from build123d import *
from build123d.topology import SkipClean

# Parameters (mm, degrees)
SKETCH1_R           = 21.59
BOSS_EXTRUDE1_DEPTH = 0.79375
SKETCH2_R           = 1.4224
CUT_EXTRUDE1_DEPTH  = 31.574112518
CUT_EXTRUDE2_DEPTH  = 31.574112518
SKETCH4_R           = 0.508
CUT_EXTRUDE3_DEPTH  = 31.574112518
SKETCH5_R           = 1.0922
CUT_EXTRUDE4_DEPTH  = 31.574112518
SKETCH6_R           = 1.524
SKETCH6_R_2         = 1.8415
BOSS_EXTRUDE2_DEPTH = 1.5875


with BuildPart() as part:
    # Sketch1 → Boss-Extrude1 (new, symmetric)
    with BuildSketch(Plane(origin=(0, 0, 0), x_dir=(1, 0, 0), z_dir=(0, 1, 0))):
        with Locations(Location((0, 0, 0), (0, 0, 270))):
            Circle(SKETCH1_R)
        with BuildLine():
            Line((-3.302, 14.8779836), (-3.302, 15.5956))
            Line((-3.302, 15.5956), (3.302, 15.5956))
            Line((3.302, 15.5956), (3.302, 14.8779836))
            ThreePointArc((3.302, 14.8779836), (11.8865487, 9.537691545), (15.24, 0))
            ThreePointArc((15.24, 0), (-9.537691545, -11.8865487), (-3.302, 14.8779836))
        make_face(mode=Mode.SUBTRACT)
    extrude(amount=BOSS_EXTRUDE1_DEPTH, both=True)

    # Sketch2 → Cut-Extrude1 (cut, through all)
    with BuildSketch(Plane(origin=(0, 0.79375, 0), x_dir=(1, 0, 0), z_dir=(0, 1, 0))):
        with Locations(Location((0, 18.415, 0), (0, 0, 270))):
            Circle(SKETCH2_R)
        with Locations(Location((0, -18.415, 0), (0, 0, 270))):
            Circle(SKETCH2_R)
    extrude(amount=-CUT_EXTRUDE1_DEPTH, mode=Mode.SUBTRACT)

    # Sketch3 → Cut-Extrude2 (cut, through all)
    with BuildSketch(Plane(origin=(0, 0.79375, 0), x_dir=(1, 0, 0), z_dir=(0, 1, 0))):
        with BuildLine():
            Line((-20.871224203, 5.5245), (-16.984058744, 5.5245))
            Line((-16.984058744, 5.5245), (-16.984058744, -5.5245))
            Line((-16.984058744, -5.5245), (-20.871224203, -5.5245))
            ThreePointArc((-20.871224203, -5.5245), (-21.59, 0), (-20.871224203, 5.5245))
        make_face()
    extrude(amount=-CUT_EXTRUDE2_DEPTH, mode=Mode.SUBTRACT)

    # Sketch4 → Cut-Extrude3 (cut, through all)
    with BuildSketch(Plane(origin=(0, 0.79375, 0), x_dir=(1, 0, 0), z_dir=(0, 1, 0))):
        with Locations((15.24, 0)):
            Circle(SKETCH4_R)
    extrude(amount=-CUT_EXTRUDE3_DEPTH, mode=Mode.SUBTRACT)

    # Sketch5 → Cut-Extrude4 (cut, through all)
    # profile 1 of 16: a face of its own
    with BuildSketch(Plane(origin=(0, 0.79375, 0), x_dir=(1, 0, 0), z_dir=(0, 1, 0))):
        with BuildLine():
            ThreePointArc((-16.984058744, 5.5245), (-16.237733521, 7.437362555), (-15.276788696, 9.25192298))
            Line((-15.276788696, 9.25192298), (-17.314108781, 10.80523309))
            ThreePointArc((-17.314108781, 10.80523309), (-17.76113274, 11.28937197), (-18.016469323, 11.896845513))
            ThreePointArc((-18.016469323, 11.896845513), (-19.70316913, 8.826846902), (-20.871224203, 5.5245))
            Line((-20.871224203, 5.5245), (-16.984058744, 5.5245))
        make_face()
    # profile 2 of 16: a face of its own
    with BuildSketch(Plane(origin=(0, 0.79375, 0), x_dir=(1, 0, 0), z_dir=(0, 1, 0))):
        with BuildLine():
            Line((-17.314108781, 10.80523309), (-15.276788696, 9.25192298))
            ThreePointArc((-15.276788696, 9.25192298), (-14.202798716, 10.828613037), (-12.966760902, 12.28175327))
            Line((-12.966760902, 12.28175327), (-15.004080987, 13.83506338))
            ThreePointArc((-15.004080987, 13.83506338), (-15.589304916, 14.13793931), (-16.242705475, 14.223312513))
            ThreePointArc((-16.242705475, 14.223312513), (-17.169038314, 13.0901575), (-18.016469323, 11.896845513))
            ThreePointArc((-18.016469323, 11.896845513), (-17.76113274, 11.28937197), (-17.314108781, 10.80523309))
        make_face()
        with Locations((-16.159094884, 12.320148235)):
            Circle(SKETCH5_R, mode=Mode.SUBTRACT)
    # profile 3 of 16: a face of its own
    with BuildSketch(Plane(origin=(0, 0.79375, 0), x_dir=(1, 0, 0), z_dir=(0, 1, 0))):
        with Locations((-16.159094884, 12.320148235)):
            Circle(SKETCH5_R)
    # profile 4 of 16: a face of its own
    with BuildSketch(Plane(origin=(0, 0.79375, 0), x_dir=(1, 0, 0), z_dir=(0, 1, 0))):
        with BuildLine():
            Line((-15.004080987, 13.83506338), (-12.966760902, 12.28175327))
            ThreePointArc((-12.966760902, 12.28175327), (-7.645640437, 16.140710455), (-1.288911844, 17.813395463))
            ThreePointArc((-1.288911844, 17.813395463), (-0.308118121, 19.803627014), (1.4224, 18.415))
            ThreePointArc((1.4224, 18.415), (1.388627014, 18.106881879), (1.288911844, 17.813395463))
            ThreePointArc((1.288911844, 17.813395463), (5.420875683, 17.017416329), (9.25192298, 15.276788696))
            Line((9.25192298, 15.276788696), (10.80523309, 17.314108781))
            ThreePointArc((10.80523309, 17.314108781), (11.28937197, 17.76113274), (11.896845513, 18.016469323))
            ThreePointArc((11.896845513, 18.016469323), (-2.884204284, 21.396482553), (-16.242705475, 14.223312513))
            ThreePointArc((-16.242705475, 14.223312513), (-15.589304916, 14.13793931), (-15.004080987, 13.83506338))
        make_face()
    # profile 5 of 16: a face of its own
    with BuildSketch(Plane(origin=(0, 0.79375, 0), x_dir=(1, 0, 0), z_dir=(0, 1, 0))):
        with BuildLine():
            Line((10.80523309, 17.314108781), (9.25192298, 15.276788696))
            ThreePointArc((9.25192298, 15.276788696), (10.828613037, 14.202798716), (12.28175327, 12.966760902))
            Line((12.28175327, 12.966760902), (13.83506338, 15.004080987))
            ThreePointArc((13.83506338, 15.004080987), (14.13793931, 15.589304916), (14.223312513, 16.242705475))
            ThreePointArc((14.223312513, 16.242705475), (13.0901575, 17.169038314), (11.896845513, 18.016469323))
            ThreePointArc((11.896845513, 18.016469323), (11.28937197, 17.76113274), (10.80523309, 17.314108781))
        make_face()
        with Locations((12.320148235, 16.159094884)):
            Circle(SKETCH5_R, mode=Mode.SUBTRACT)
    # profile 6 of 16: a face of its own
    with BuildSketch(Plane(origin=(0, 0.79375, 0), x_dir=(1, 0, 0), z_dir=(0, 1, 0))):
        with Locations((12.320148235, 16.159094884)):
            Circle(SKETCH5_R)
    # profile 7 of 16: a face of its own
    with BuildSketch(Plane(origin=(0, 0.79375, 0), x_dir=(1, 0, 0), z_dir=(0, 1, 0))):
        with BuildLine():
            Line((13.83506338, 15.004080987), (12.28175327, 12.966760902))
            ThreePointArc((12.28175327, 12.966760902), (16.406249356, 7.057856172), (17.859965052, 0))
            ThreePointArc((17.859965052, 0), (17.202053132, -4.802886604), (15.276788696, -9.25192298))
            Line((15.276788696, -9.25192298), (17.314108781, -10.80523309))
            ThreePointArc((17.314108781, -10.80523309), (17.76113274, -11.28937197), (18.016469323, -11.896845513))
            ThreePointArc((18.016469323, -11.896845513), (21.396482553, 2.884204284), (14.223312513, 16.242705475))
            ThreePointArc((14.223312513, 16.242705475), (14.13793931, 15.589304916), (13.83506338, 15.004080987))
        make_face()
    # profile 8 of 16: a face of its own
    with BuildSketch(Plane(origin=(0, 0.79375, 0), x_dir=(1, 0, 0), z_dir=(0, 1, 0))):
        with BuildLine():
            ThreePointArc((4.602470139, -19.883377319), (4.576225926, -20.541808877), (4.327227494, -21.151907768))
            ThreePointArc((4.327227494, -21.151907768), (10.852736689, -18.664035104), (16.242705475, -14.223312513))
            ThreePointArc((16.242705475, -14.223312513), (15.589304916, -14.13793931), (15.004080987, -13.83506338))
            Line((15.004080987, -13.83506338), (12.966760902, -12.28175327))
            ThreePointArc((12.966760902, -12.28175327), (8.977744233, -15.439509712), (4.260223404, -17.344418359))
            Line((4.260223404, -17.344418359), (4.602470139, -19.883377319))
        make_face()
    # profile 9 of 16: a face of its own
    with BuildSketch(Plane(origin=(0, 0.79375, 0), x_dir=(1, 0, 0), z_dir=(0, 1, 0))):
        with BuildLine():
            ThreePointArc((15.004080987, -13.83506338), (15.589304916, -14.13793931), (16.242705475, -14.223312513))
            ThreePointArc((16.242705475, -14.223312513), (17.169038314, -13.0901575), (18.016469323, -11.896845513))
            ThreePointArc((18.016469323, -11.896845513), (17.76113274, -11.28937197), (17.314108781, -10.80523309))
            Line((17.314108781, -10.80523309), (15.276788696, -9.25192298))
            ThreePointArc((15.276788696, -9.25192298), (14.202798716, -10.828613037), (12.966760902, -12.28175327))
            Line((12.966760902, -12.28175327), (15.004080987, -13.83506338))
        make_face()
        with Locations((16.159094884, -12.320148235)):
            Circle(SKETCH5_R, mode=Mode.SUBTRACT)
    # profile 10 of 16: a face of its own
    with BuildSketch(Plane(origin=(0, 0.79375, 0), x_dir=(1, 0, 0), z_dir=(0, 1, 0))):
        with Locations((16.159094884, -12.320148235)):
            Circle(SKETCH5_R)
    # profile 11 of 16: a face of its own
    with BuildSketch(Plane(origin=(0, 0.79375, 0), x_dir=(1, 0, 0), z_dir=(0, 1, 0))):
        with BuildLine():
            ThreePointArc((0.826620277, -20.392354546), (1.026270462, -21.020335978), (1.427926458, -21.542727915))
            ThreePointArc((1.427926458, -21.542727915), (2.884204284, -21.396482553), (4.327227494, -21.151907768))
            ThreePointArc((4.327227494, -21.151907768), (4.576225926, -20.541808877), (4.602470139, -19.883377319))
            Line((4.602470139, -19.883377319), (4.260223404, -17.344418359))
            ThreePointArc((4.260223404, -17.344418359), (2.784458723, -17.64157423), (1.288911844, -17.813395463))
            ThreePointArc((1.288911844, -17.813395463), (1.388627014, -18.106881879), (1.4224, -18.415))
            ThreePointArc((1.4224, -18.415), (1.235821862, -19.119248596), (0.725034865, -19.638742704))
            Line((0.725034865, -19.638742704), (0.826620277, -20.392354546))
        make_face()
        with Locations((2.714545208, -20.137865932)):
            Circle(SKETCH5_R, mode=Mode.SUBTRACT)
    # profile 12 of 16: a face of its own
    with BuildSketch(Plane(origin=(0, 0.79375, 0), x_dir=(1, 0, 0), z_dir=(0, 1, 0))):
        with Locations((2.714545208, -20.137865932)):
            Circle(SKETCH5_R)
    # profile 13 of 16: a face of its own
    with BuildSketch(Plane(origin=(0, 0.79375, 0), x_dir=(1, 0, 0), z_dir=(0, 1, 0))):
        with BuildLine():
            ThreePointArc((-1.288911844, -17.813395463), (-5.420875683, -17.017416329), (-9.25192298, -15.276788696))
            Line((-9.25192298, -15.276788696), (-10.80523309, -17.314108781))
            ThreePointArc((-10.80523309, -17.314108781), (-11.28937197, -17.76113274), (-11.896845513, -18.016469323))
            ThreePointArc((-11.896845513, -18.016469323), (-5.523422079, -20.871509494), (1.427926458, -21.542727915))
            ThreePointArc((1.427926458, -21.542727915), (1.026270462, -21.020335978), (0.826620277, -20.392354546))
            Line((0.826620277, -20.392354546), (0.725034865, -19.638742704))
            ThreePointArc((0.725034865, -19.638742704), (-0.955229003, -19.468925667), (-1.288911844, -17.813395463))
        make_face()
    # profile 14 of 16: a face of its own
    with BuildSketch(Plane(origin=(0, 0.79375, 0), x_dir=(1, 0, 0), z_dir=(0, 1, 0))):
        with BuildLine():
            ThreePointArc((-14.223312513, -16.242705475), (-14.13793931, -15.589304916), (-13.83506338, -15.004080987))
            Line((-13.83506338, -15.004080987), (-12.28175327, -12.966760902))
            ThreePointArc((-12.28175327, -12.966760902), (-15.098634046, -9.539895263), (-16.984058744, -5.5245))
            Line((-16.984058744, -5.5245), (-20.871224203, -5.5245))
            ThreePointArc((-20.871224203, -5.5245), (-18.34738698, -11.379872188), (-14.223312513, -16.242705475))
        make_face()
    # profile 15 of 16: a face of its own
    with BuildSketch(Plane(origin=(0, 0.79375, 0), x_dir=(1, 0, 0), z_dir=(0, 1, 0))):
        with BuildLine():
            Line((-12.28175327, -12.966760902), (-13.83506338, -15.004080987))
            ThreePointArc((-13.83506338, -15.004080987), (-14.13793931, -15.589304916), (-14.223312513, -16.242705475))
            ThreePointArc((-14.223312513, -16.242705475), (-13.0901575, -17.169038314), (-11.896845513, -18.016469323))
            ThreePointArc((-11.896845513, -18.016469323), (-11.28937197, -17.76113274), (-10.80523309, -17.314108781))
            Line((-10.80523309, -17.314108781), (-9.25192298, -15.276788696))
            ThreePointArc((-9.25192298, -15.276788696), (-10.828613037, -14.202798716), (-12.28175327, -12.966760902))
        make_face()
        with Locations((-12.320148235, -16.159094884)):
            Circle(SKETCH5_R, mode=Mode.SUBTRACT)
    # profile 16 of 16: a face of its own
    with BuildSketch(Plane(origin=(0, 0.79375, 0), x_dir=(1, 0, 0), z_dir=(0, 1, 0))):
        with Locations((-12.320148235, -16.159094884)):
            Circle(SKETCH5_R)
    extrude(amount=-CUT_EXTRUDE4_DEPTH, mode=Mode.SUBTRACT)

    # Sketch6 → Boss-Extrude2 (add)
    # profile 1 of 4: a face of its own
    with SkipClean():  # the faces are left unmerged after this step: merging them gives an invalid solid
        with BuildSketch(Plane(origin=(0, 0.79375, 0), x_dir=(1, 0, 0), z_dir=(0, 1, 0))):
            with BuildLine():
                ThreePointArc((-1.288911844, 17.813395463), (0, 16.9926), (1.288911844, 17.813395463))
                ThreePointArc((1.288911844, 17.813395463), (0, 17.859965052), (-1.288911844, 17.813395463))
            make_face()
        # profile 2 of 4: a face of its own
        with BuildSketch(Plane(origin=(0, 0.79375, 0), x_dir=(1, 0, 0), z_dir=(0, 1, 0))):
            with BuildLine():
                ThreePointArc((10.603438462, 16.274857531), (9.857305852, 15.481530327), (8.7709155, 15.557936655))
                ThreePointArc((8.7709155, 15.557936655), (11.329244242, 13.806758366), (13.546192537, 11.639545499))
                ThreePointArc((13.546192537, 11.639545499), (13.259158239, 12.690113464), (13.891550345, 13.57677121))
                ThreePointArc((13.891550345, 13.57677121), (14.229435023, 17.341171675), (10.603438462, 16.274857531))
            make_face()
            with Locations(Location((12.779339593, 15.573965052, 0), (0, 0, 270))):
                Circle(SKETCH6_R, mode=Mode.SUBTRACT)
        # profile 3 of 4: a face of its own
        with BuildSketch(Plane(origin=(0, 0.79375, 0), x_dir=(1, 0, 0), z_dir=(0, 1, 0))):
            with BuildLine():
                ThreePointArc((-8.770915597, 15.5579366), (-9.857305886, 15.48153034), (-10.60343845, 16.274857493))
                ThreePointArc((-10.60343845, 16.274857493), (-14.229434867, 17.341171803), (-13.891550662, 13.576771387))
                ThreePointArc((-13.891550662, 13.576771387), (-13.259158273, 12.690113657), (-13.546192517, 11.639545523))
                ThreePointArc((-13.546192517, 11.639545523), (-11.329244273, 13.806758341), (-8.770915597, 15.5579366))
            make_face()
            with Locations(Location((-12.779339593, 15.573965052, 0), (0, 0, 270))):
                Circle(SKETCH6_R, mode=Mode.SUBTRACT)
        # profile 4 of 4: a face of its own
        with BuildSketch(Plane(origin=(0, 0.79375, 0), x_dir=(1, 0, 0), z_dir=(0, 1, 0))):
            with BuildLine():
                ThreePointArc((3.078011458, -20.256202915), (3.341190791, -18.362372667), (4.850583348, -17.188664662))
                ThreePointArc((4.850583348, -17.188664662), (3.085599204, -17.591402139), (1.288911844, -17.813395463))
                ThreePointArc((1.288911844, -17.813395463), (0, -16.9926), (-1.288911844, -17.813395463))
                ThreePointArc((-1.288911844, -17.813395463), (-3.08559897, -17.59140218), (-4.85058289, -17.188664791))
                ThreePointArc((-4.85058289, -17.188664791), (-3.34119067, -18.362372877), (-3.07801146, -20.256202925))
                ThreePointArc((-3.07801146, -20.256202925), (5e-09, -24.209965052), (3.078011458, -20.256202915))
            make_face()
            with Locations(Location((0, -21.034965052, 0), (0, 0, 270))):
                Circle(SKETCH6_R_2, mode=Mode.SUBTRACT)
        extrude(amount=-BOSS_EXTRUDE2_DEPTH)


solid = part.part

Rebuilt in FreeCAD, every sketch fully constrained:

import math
import FreeCAD as App
import Part
import Sketcher
Q = App.Units.Quantity

doc = App.newDocument("Part")
body = doc.addObject("PartDesign::Body", "Body")

sketch1 = body.newObject("Sketcher::SketchObject", "Sketch")
sketch1.AttachmentSupport = (doc.getObject("XZ_Plane"), [""])
sketch1.MapMode = "FlatFace"
sketch1.addGeometry([
    Part.Circle(App.Vector(0, 0, 0), App.Vector(0, 0, 1), 21.6),
    Part.ArcOfCircle(Part.Circle(App.Vector(0, 0, 0), App.Vector(0, 0, 1), 15.2), math.radians(0), math.radians(257)),
    Part.LineSegment(App.Vector(-3.3, -14.9, 0), App.Vector(-3.3, -15.6, 0)),
    Part.LineSegment(App.Vector(-3.3, -15.6, 0), App.Vector(3.3, -15.6, 0)),
    Part.LineSegment(App.Vector(3.3, -15.6, 0), App.Vector(3.3, -14.9, 0)),
    Part.ArcOfCircle(Part.Circle(App.Vector(0, 0, 0), App.Vector(0, 0, 1), 15.2), math.radians(-77), math.radians(0)),
], False)
sketch1.addConstraint([
    Sketcher.Constraint("Coincident", 1, 2, 2, 1),
    Sketcher.Constraint("Coincident", 2, 2, 3, 1),
    Sketcher.Constraint("Coincident", 3, 2, 4, 1),
    Sketcher.Constraint("Coincident", 4, 2, 5, 1),
    Sketcher.Constraint("Tangent", 5, 2, 1, 1),
    Sketcher.Constraint("Vertical", 2),
    Sketcher.Constraint("Horizontal", 3),
    Sketcher.Constraint("Vertical", 4),
    Sketcher.Constraint("Coincident", 0, 3, -1, 1),
    Sketcher.Constraint("Coincident", 1, 3, -1, 1),
    Sketcher.Constraint("Equal", 1, 5),
    Sketcher.Constraint("PointOnObject", 5, 2, -1),
    Sketcher.Constraint("Horizontal", 1, 2, 4, 2),
    Sketcher.Constraint("Diameter", 0, Q("1.7 in")),
    Sketcher.Constraint("Radius", 1, Q("0.6 in")),
    Sketcher.Constraint("DistanceX", 3, 1, 3, 2, Q("0.26 in")),
    Sketcher.Constraint("DistanceY", 2, 2, -1, 1, Q("0.614 in")),
])
pad1 = body.newObject("PartDesign::Pad", "Pad")
pad1.Profile = sketch1
pad1.Length = Q("0.0625 in")
pad1.Midplane = True

sketch2 = body.newObject("Sketcher::SketchObject", "Sketch001")
sketch2.AttachmentSupport = (doc.getObject("XZ_Plane"), [""])
sketch2.MapMode = "FlatFace"
sketch2.AttachmentOffset = App.Placement(App.Vector(0, 0, -0.03125 * 25.4), App.Rotation())
sketch2.addGeometry([
    Part.Circle(App.Vector(0, -18.4, 0), App.Vector(0, 0, 1), 1.4),
    Part.Circle(App.Vector(0, 18.4, 0), App.Vector(0, 0, 1), 1.4),
], False)
sketch2.addConstraint([
    Sketcher.Constraint("Equal", 0, 1),
    Sketcher.Constraint("Symmetric", 0, 3, 1, 3, -1, 1),
    Sketcher.Constraint("PointOnObject", 0, 3, -2),
    Sketcher.Constraint("Diameter", 0, Q("0.112 in")),
    Sketcher.Constraint("DistanceY", 0, 3, 1, 3, Q("1.45 in")),
])
pocket1 = body.newObject("PartDesign::Pocket", "Pocket")
pocket1.Profile = sketch2
pocket1.Type = "ThroughAll"
pocket1.Reversed = True

sketch3 = body.newObject("Sketcher::SketchObject", "Sketch002")
sketch3.AttachmentSupport = (doc.getObject("XZ_Plane"), [""])
sketch3.MapMode = "FlatFace"
sketch3.AttachmentOffset = App.Placement(App.Vector(0, 0, -0.03125 * 25.4), App.Rotation())
sketch3.addGeometry([
    Part.LineSegment(App.Vector(-17, -5.5, 0), App.Vector(-20.9, -5.5, 0)),
    Part.ArcOfCircle(Part.Circle(App.Vector(0, 0, 0), App.Vector(0, 0, 1), 21.6), math.radians(165), math.radians(195)),
    Part.LineSegment(App.Vector(-20.9, 5.5, 0), App.Vector(-17, 5.5, 0)),
    Part.LineSegment(App.Vector(-17, 5.5, 0), App.Vector(-17, -5.5, 0)),
], False)
sketch3.addConstraint([
    Sketcher.Constraint("Coincident", 0, 2, 1, 2),
    Sketcher.Constraint("Coincident", 1, 1, 2, 1),
    Sketcher.Constraint("Coincident", 2, 2, 3, 1),
    Sketcher.Constraint("Coincident", 3, 2, 0, 1),
    Sketcher.Constraint("Horizontal", 0),
    Sketcher.Constraint("Horizontal", 2),
    Sketcher.Constraint("Vertical", 3),
    Sketcher.Constraint("Coincident", 1, 3, -1, 1),
    Sketcher.Constraint("Vertical", 0, 2, 1, 1),
    Sketcher.Constraint("Radius", 1, Q("0.85 in")),
    Sketcher.Constraint("DistanceY", 3, 2, 3, 1, Q("0.435 in")),
    Sketcher.Constraint("DistanceX", 0, 2, 0, 1, Q("3.887165 mm")),
])
pocket2 = body.newObject("PartDesign::Pocket", "Pocket001")
pocket2.Profile = sketch3
pocket2.Type = "ThroughAll"
pocket2.Reversed = True

sketch4 = body.newObject("Sketcher::SketchObject", "Sketch003")
sketch4.AttachmentSupport = (doc.getObject("XZ_Plane"), [""])
sketch4.MapMode = "FlatFace"
sketch4.AttachmentOffset = App.Placement(App.Vector(0, 0, -0.03125 * 25.4), App.Rotation())
sketch4.addGeometry(Part.Circle(App.Vector(15.2, 0, 0), App.Vector(0, 0, 1), 0.5), False)
sketch4.addConstraint([
    Sketcher.Constraint("PointOnObject", 0, 3, -1),
    Sketcher.Constraint("Diameter", 0, Q("0.04 in")),
    Sketcher.Constraint("DistanceX", -1, 1, 0, 3, Q("0.6 in")),
])
pocket3 = body.newObject("PartDesign::Pocket", "Pocket002")
pocket3.Profile = sketch4
pocket3.Type = "ThroughAll"
pocket3.Reversed = True

sketch5 = body.newObject("Sketcher::SketchObject", "Sketch004")
sketch5.AttachmentSupport = (doc.getObject("XZ_Plane"), [""])
sketch5.MapMode = "FlatFace"
sketch5.AttachmentOffset = App.Placement(App.Vector(0, 0, -0.03125 * 25.4), App.Rotation())
sketch5.addGeometry([
    Part.ArcOfCircle(Part.Circle(App.Vector(0, 0, 0), App.Vector(0, 0, 1), 17.9), math.radians(-161.98), math.radians(-148.8)),
    Part.ArcOfCircle(Part.Circle(App.Vector(0, 0, 0), App.Vector(0, 0, 1), 17.9), math.radians(-148.8), math.radians(-136.55)),
    Part.ArcOfCircle(Part.Circle(App.Vector(0, 0, 0), App.Vector(0, 0, 1), 17.9), math.radians(-137), math.radians(-94)),
    Part.ArcOfCircle(Part.Circle(App.Vector(0, -18.4, 0), App.Vector(0, 0, 1), 1.4), math.radians(155), math.radians(360)),
    Part.ArcOfCircle(Part.Circle(App.Vector(0, -18.4, 0), App.Vector(0, 0, 1), 1.4), math.radians(0), math.radians(25)),
    Part.ArcOfCircle(Part.Circle(App.Vector(0, 0, 0), App.Vector(0, 0, 1), 17.9), math.radians(-86), math.radians(-59)),
    Part.ArcOfCircle(Part.Circle(App.Vector(0, 0, 0), App.Vector(0, 0, 1), 17.9), math.radians(-58.8), math.radians(-46.55)),
    Part.ArcOfCircle(Part.Circle(App.Vector(0, 0, 0), App.Vector(0, 0, 1), 17.9), math.radians(-47), math.radians(0)),
    Part.ArcOfCircle(Part.Circle(App.Vector(0, 0, 0), App.Vector(0, 0, 1), 17.9), math.radians(0), math.radians(31)),
    Part.ArcOfCircle(Part.Circle(App.Vector(0, 0, 0), App.Vector(0, 0, 1), 17.9), math.radians(31.2), math.radians(43.45)),
    Part.ArcOfCircle(Part.Circle(App.Vector(0, 0, 0), App.Vector(0, 0, 1), 17.9), math.radians(43), math.radians(76)),
    Part.ArcOfCircle(Part.Circle(App.Vector(0, 0, 0), App.Vector(0, 0, 1), 17.9), math.radians(76.2), math.radians(85.86)),
    Part.ArcOfCircle(Part.Circle(App.Vector(0, 18.4, 0), App.Vector(0, 0, 1), 1.4), math.radians(-25), math.radians(0)),
    Part.ArcOfCircle(Part.Circle(App.Vector(0, 18.4, 0), App.Vector(0, 0, 1), 1.4), math.radians(0), math.radians(59)),
    Part.ArcOfCircle(Part.Circle(App.Vector(0, 18.4, 0), App.Vector(0, 0, 1), 1.4), math.radians(59), math.radians(205)),
    Part.ArcOfCircle(Part.Circle(App.Vector(0, 0, 0), App.Vector(0, 0, 1), 17.9), math.radians(94), math.radians(121)),
    Part.ArcOfCircle(Part.Circle(App.Vector(0, 0, 0), App.Vector(0, 0, 1), 17.9), math.radians(121.2), math.radians(133.45)),
    Part.ArcOfCircle(Part.Circle(App.Vector(0, 0, 0), App.Vector(0, 0, 1), 17.9), math.radians(133), math.radians(162)),
    Part.LineSegment(App.Vector(-17, 5.5, 0), App.Vector(-20.9, 5.5, 0)),
    Part.ArcOfCircle(Part.Circle(App.Vector(0, 0, 0), App.Vector(0, 0, 1), 21.6), math.radians(131), math.radians(165)),
    Part.ArcOfCircle(Part.Circle(App.Vector(0, 0, 0), App.Vector(0, 0, 1), 21.6), math.radians(123.44), math.radians(131.21)),
    Part.ArcOfCircle(Part.Circle(App.Vector(0, 0, 0), App.Vector(0, 0, 1), 21.6), math.radians(86), math.radians(123)),
    Part.ArcOfCircle(Part.Circle(App.Vector(0, 0, 0), App.Vector(0, 0, 1), 21.6), math.radians(78.44), math.radians(86.21)),
    Part.ArcOfCircle(Part.Circle(App.Vector(0, 0, 0), App.Vector(0, 0, 1), 21.6), math.radians(41), math.radians(78)),
    Part.ArcOfCircle(Part.Circle(App.Vector(0, 0, 0), App.Vector(0, 0, 1), 21.6), math.radians(33.44), math.radians(41.21)),
    Part.ArcOfCircle(Part.Circle(App.Vector(0, 0, 0), App.Vector(0, 0, 1), 21.6), math.radians(-49), math.radians(33)),
    Part.ArcOfCircle(Part.Circle(App.Vector(0, 0, 0), App.Vector(0, 0, 1), 21.6), math.radians(-56.56), math.radians(-48.79)),
    Part.ArcOfCircle(Part.Circle(App.Vector(0, 0, 0), App.Vector(0, 0, 1), 21.6), math.radians(-139), math.radians(-57)),
    Part.ArcOfCircle(Part.Circle(App.Vector(0, 0, 0), App.Vector(0, 0, 1), 21.6), math.radians(-146.56), math.radians(-138.79)),
    Part.ArcOfCircle(Part.Circle(App.Vector(0, 0, 0), App.Vector(0, 0, 1), 21.6), math.radians(-165.17), math.radians(-146.56)),
    Part.LineSegment(App.Vector(-20.9, -5.5, 0), App.Vector(-17, -5.5, 0)),
], False)
sketch5.addConstraint([
    Sketcher.Constraint("Tangent", 0, 2, 1, 1),
    Sketcher.Constraint("Tangent", 1, 2, 2, 1),
    Sketcher.Constraint("Coincident", 2, 2, 3, 1),
    Sketcher.Constraint("Tangent", 3, 2, 4, 1),
    Sketcher.Constraint("Coincident", 4, 2, 5, 1),
    Sketcher.Constraint("Tangent", 5, 2, 6, 1),
    Sketcher.Constraint("Tangent", 6, 2, 7, 1),
    Sketcher.Constraint("Tangent", 7, 2, 8, 1),
    Sketcher.Constraint("Tangent", 8, 2, 9, 1),
    Sketcher.Constraint("Tangent", 9, 2, 10, 1),
    Sketcher.Constraint("Tangent", 10, 2, 11, 1),
    Sketcher.Constraint("Coincident", 11, 2, 12, 1),
    Sketcher.Constraint("Tangent", 12, 2, 13, 1),
    Sketcher.Constraint("Tangent", 13, 2, 14, 1),
    Sketcher.Constraint("Coincident", 14, 2, 15, 1),
    Sketcher.Constraint("Tangent", 15, 2, 16, 1),
    Sketcher.Constraint("Tangent", 16, 2, 17, 1),
    Sketcher.Constraint("Coincident", 17, 2, 18, 1),
    Sketcher.Constraint("Coincident", 18, 2, 19, 2),
    Sketcher.Constraint("Tangent", 19, 1, 20, 2),
    Sketcher.Constraint("Tangent", 20, 1, 21, 2),
    Sketcher.Constraint("Tangent", 21, 1, 22, 2),
    Sketcher.Constraint("Tangent", 22, 1, 23, 2),
    Sketcher.Constraint("Tangent", 23, 1, 24, 2),
    Sketcher.Constraint("Tangent", 24, 1, 25, 2),
    Sketcher.Constraint("Tangent", 25, 1, 26, 2),
    Sketcher.Constraint("Tangent", 26, 1, 27, 2),
    Sketcher.Constraint("Tangent", 27, 1, 28, 2),
    Sketcher.Constraint("Tangent", 28, 1, 29, 2),
    Sketcher.Constraint("Coincident", 29, 1, 30, 1),
    Sketcher.Constraint("Coincident", 30, 2, 0, 1),
    Sketcher.Constraint("Horizontal", 18),
    Sketcher.Constraint("Horizontal", 30),
    Sketcher.Constraint("Coincident", 0, 3, -1, 1),
    Sketcher.Constraint("Coincident", 2, 3, -1, 1),
    Sketcher.Constraint("Coincident", 5, 3, -1, 1),
    Sketcher.Constraint("Coincident", 7, 3, -1, 1),
    Sketcher.Constraint("Coincident", 9, 3, -1, 1),
    Sketcher.Constraint("Coincident", 11, 3, -1, 1),
    Sketcher.Constraint("Coincident", 15, 3, -1, 1),
    Sketcher.Constraint("Coincident", 17, 3, -1, 1),
    Sketcher.Constraint("Coincident", 19, 3, -1, 1),
    Sketcher.Constraint("Coincident", 21, 3, -1, 1),
    Sketcher.Constraint("Coincident", 23, 3, -1, 1),
    Sketcher.Constraint("Coincident", 25, 3, -1, 1),
    Sketcher.Constraint("Coincident", 27, 3, -1, 1),
    Sketcher.Constraint("Coincident", 29, 3, -1, 1),
    Sketcher.Constraint("Coincident", 14, 3, 12, 3),
    Sketcher.Constraint("Equal", 3, 4),
    Sketcher.Constraint("Equal", 2, 5),
    Sketcher.Constraint("Equal", 4, 12),
    Sketcher.Constraint("Equal", 11, 15),
    Sketcher.Constraint("Symmetric", 3, 3, 12, 3, -1, 1),
    Sketcher.Constraint("Symmetric", 3, 2, 12, 2, -1),
    Sketcher.Constraint("PointOnObject", 7, 2, -1),
    Sketcher.Constraint("Horizontal", 4, 3, 3, 2),
    Sketcher.Constraint("Vertical", 18, 2, 29, 1),
    Sketcher.Constraint("Radius", 19, Q("0.85 in")),
    Sketcher.Constraint("Radius", 3, Q("0.056 in")),
    Sketcher.Constraint("DistanceY", 3, 3, -1, 1, Q("0.725 in")),
    Sketcher.Constraint("DistanceY", 29, 1, 18, 2, Q("0.435 in")),
    Sketcher.Constraint("Radius", 0, Q("17.859965 mm")),
    Sketcher.Constraint("DistanceX", 8, 2, 7, 2, Q("0.1016999 in")),
    Sketcher.Constraint("DistanceX", 13, 2, 11, 2, Q("0.0221999 in")),
    Sketcher.Constraint("DistanceX", 18, 2, 15, 2, Q("11.619301 mm")),
    Sketcher.Constraint("DistanceX", 19, 1, 14, 2, Q("12.934401 mm")),
    Sketcher.Constraint("DistanceX", 21, 1, 22, 1, Q("2.899301 mm")),
    Sketcher.Constraint("DistanceX", 4, 2, 25, 1, Q("12.934401 mm")),
    Sketcher.Constraint("DistanceX", 0, 2, -1, 1, Q("15.276789 mm")),
    Sketcher.Constraint("DistanceX", 1, 2, -1, 1, Q("12.966761 mm")),
    Sketcher.Constraint("DistanceY", 5, 2, -1, 1, Q("15.276789 mm")),
    Sketcher.Constraint("DistanceY", 6, 2, -1, 1, Q("12.966761 mm")),
    Sketcher.Constraint("DistanceX", -1, 1, 9, 2, Q("12.966761 mm")),
    Sketcher.Constraint("DistanceY", -1, 1, 10, 2, Q("17.344418 mm")),
    Sketcher.Constraint("DistanceY", -1, 1, 16, 2, Q("12.966761 mm")),
    Sketcher.Constraint("DistanceY", -1, 1, 20, 1, Q("18.016469 mm")),
    Sketcher.Constraint("DistanceX", -1, 1, 24, 1, Q("18.016469 mm")),
    Sketcher.Constraint("DistanceY", 26, 1, -1, 1, Q("18.016469 mm")),
    Sketcher.Constraint("DistanceX", 28, 1, -1, 1, Q("18.016469 mm")),
    Sketcher.Constraint("DistanceX", 13, 2, 21, 1, Q("0.702892 mm")),
    Sketcher.Constraint("DistanceY", 9, 2, 23, 1, Q("1.941559 mm")),
    Sketcher.Constraint("DistanceY", 27, 1, 1, 2, Q("1.941559 mm")),
])
pocket4 = body.newObject("PartDesign::Pocket", "Pocket003")
pocket4.Profile = sketch5
pocket4.Length = 31.574113
pocket4.Reversed = True

sketch6 = body.newObject("Sketcher::SketchObject", "Sketch005")
sketch6.AttachmentSupport = (doc.getObject("XZ_Plane"), [""])
sketch6.MapMode = "FlatFace"
sketch6.AttachmentOffset = App.Placement(App.Vector(0, 0, -0.03125 * 25.4), App.Rotation())
sketch6.addGeometry([
    Part.ArcOfCircle(Part.Circle(App.Vector(0, -18.4, 0), App.Vector(0, 0, 1), 1.4), math.radians(25), math.radians(155)),
    Part.ArcOfCircle(Part.Circle(App.Vector(0, 0, 0), App.Vector(0, 0, 1), 17.9), math.radians(-94.14), math.radians(-85.86)),
    Part.ArcOfCircle(Part.Circle(App.Vector(9.4, -16.7, 0), App.Vector(0, 0, 1), 1.3), math.radians(18), math.radians(119)),
    Part.ArcOfCircle(Part.Circle(App.Vector(0, 0, 0), App.Vector(0, 0, 1), 17.9), math.radians(-60.59), math.radians(-40.67)),
    Part.ArcOfCircle(Part.Circle(App.Vector(14.5, -12.5, 0), App.Vector(0, 0, 1), 1.3), math.radians(139), math.radians(241)),
    Part.ArcOfCircle(Part.Circle(App.Vector(12.8, -15.6, 0), App.Vector(0, 0, 1), 2.3), math.radians(-162), math.radians(61)),
    Part.Circle(App.Vector(12.8, -15.6, 0), App.Vector(0, 0, 1), 1.5),
    Part.ArcOfCircle(Part.Circle(App.Vector(-9.4, -16.7, 0), App.Vector(0, 0, 1), 1.3), math.radians(61), math.radians(162)),
    Part.ArcOfCircle(Part.Circle(App.Vector(-12.8, -15.6, 0), App.Vector(0, 0, 1), 2.3), math.radians(119), math.radians(342)),
    Part.ArcOfCircle(Part.Circle(App.Vector(-14.5, -12.5, 0), App.Vector(0, 0, 1), 1.3), math.radians(-61), math.radians(41)),
    Part.ArcOfCircle(Part.Circle(App.Vector(0, 0, 0), App.Vector(0, 0, 1), 17.9), math.radians(-139.33), math.radians(-119.41)),
    Part.Circle(App.Vector(-12.8, -15.6, 0), App.Vector(0, 0, 1), 1.5),
    Part.ArcOfCircle(Part.Circle(App.Vector(5.5, 19.6, 0), App.Vector(0, 0, 1), 2.5), math.radians(166), math.radians(254)),
    Part.ArcOfCircle(Part.Circle(App.Vector(0, 0, 0), App.Vector(0, 0, 1), 17.9), math.radians(74.24), math.radians(85.86)),
    Part.ArcOfCircle(Part.Circle(App.Vector(0, 18.4, 0), App.Vector(0, 0, 1), 1.4), math.radians(-155), math.radians(-25)),
    Part.ArcOfCircle(Part.Circle(App.Vector(0, 0, 0), App.Vector(0, 0, 1), 17.9), math.radians(94.14), math.radians(105.76)),
    Part.ArcOfCircle(Part.Circle(App.Vector(-5.5, 19.6, 0), App.Vector(0, 0, 1), 2.5), math.radians(-74), math.radians(14)),
    Part.ArcOfCircle(Part.Circle(App.Vector(0, 21, 0), App.Vector(0, 0, 1), 3.2), math.radians(-14), math.radians(194)),
    Part.Circle(App.Vector(0, 21, 0), App.Vector(0, 0, 1), 1.8),
], False)
sketch6.addConstraint([
    Sketcher.Constraint("Coincident", 0, 1, 1, 2),
    Sketcher.Constraint("Coincident", 1, 1, 0, 2),
    Sketcher.Constraint("Tangent", 2, 2, 3, 1),
    Sketcher.Constraint("Tangent", 3, 2, 4, 1),
    Sketcher.Constraint("Tangent", 4, 2, 5, 2),
    Sketcher.Constraint("Tangent", 5, 1, 2, 1),
    Sketcher.Constraint("Tangent", 7, 2, 8, 2),
    Sketcher.Constraint("Tangent", 8, 1, 9, 1),
    Sketcher.Constraint("Tangent", 9, 2, 10, 1),
    Sketcher.Constraint("Tangent", 10, 2, 7, 1),
    Sketcher.Constraint("Tangent", 12, 2, 13, 1),
    Sketcher.Constraint("Coincident", 13, 2, 14, 2),
    Sketcher.Constraint("Coincident", 14, 1, 15, 1),
    Sketcher.Constraint("Tangent", 15, 2, 16, 1),
    Sketcher.Constraint("Tangent", 16, 2, 17, 2),
    Sketcher.Constraint("Tangent", 17, 1, 12, 1),
    Sketcher.Constraint("Coincident", 1, 3, -1, 1),
    Sketcher.Constraint("Coincident", 3, 3, -1, 1),
    Sketcher.Constraint("Coincident", 10, 3, -1, 1),
    Sketcher.Constraint("Coincident", 13, 3, -1, 1),
    Sketcher.Constraint("Coincident", 15, 3, -1, 1),
    Sketcher.Constraint("Coincident", 6, 3, 5, 3),
    Sketcher.Constraint("Coincident", 11, 3, 8, 3),
    Sketcher.Constraint("Coincident", 18, 3, 17, 3),
    Sketcher.Constraint("Equal", 1, 3),
    Sketcher.Constraint("Equal", 2, 4),
    Sketcher.Constraint("Equal", 4, 7),
    Sketcher.Constraint("Equal", 5, 8),
    Sketcher.Constraint("Equal", 7, 9),
    Sketcher.Constraint("Equal", 3, 10),
    Sketcher.Constraint("Equal", 6, 11),
    Sketcher.Constraint("Equal", 10, 13),
    Sketcher.Constraint("Equal", 0, 14),
    Sketcher.Constraint("Equal", 13, 15),
    Sketcher.Constraint("Equal", 12, 16),
    Sketcher.Constraint("Symmetric", 0, 3, 14, 3, -1, 1),
    Sketcher.Constraint("Symmetric", 5, 3, 8, 3, -2),
    Sketcher.Constraint("PointOnObject", 0, 3, -2),
    Sketcher.Constraint("PointOnObject", 17, 3, -2),
    Sketcher.Constraint("Radius", 12, Q("0.1 in")),
    Sketcher.Constraint("Diameter", 6, Q("0.12 in")),
    Sketcher.Constraint("Radius", 2, Q("0.05 in")),
    Sketcher.Constraint("Radius", 5, Q("0.09 in")),
    Sketcher.Constraint("Diameter", 18, Q("0.145 in")),
    Sketcher.Constraint("Radius", 0, Q("0.056 in")),
    Sketcher.Constraint("Radius", 17, Q("0.125 in")),
    Sketcher.Constraint("DistanceY", 0, 3, -1, 1, Q("0.725 in")),
    Sketcher.Constraint("Radius", 1, Q("17.859965 mm")),
    Sketcher.Constraint("DistanceX", 8, 1, 10, 2, Q("0.2015998 in")),
    Sketcher.Constraint("DistanceX", 5, 1, 6, 3, Q("2.175901 mm")),
    Sketcher.Constraint("DistanceY", 12, 2, 17, 3, Q("3.8463 mm")),
])
pad2 = body.newObject("PartDesign::Pad", "Pad001")
pad2.Profile = sketch6
pad2.Length = Q("0.0625 in")

doc.recompute()
